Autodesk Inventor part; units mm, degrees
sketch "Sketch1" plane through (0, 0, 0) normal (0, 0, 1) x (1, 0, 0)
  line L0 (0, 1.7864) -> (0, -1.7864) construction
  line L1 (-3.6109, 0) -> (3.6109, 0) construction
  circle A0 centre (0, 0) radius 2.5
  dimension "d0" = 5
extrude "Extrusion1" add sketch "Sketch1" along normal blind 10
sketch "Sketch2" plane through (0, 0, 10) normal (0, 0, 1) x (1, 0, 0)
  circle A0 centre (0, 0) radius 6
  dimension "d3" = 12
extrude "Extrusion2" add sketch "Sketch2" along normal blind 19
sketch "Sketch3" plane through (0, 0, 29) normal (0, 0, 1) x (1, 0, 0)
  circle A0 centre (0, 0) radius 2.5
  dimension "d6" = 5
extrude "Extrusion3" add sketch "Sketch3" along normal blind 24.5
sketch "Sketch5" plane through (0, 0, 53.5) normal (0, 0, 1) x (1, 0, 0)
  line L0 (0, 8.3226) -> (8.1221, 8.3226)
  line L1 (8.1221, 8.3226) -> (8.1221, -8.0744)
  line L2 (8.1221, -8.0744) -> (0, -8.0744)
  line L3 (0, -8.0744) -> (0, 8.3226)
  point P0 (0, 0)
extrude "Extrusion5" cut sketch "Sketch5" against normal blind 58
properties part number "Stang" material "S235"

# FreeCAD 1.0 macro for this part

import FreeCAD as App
import Part
import Sketcher

doc = App.newDocument("Part")
body = doc.addObject("PartDesign::Body", "Body")

sketch1 = body.newObject("Sketcher::SketchObject", "Sketch")
sketch1.AttachmentSupport = (doc.getObject("XY_Plane"), [""])
sketch1.MapMode = "FlatFace"
sketch1.addGeometry(Part.Circle(App.Vector(0, 0, 0), App.Vector(0, 0, 1), 2.5), False)
sketch1.addConstraint(Sketcher.Constraint("Coincident", 0, 3, -1, 1))
sketch1.addConstraint(Sketcher.Constraint("Diameter", 0, 5.0))
pad1 = body.newObject("PartDesign::Pad", "Pad")
pad1.Profile = sketch1
pad1.Length = 10

sketch2 = body.newObject("Sketcher::SketchObject", "Sketch001")
sketch2.AttachmentSupport = (doc.getObject("XY_Plane"), [""])
sketch2.MapMode = "FlatFace"
sketch2.AttachmentOffset = App.Placement(App.Vector(0, 0, 10), App.Rotation())
sketch2.addGeometry(Part.Circle(App.Vector(0, 0, 0), App.Vector(0, 0, 1), 6), False)
sketch2.addConstraint(Sketcher.Constraint("Coincident", 0, 3, -1, 1))
sketch2.addConstraint(Sketcher.Constraint("Diameter", 0, 12.0))
pad2 = body.newObject("PartDesign::Pad", "Pad001")
pad2.Profile = sketch2
pad2.Length = 19

sketch3 = body.newObject("Sketcher::SketchObject", "Sketch002")
sketch3.AttachmentSupport = (doc.getObject("XY_Plane"), [""])
sketch3.MapMode = "FlatFace"
sketch3.AttachmentOffset = App.Placement(App.Vector(0, 0, 29), App.Rotation())
sketch3.addGeometry(Part.Circle(App.Vector(0, 0, 0), App.Vector(0, 0, 1), 2.5), False)
sketch3.addConstraint(Sketcher.Constraint("Coincident", 0, 3, -1, 1))
sketch3.addConstraint(Sketcher.Constraint("Diameter", 0, 5.0))
pad3 = body.newObject("PartDesign::Pad", "Pad002")
pad3.Profile = sketch3
pad3.Length = 24.5

sketch4 = body.newObject("Sketcher::SketchObject", "Sketch003")
sketch4.AttachmentSupport = (doc.getObject("XY_Plane"), [""])
sketch4.MapMode = "FlatFace"
sketch4.AttachmentOffset = App.Placement(App.Vector(0, 0, 53.5), App.Rotation())
sketch4.addGeometry(Part.LineSegment(App.Vector(8, 8, 0), App.Vector(0, 8, 0)), False)
sketch4.addGeometry(Part.LineSegment(App.Vector(0, 8, 0), App.Vector(0, -8, 0)), False)
sketch4.addGeometry(Part.LineSegment(App.Vector(0, -8, 0), App.Vector(8, -8, 0)), False)
sketch4.addGeometry(Part.LineSegment(App.Vector(8, -8, 0), App.Vector(8, 8, 0)), False)
sketch4.addConstraint(Sketcher.Constraint("Coincident", 0, 2, 1, 1))
sketch4.addConstraint(Sketcher.Constraint("Coincident", 1, 2, 2, 1))
sketch4.addConstraint(Sketcher.Constraint("Coincident", 2, 2, 3, 1))
sketch4.addConstraint(Sketcher.Constraint("Coincident", 3, 2, 0, 1))
sketch4.addConstraint(Sketcher.Constraint("Horizontal", 0))
sketch4.addConstraint(Sketcher.Constraint("Vertical", 1))
sketch4.addConstraint(Sketcher.Constraint("Horizontal", 2))
sketch4.addConstraint(Sketcher.Constraint("Vertical", 3))
sketch4.addConstraint(Sketcher.Constraint("PointOnObject", 0, 2, -2))
sketch4.addConstraint(Sketcher.Constraint("DistanceX", 0, 2, 0, 1, 8.122))
sketch4.addConstraint(Sketcher.Constraint("DistanceY", 1, 2, 1, 1, 16.397))
sketch4.addConstraint(Sketcher.Constraint("DistanceY", -1, 1, 0, 2, 8.3226))
pocket1 = body.newObject("PartDesign::Pocket", "Pocket")
pocket1.Profile = sketch4
pocket1.Length = 58

doc.recompute()
